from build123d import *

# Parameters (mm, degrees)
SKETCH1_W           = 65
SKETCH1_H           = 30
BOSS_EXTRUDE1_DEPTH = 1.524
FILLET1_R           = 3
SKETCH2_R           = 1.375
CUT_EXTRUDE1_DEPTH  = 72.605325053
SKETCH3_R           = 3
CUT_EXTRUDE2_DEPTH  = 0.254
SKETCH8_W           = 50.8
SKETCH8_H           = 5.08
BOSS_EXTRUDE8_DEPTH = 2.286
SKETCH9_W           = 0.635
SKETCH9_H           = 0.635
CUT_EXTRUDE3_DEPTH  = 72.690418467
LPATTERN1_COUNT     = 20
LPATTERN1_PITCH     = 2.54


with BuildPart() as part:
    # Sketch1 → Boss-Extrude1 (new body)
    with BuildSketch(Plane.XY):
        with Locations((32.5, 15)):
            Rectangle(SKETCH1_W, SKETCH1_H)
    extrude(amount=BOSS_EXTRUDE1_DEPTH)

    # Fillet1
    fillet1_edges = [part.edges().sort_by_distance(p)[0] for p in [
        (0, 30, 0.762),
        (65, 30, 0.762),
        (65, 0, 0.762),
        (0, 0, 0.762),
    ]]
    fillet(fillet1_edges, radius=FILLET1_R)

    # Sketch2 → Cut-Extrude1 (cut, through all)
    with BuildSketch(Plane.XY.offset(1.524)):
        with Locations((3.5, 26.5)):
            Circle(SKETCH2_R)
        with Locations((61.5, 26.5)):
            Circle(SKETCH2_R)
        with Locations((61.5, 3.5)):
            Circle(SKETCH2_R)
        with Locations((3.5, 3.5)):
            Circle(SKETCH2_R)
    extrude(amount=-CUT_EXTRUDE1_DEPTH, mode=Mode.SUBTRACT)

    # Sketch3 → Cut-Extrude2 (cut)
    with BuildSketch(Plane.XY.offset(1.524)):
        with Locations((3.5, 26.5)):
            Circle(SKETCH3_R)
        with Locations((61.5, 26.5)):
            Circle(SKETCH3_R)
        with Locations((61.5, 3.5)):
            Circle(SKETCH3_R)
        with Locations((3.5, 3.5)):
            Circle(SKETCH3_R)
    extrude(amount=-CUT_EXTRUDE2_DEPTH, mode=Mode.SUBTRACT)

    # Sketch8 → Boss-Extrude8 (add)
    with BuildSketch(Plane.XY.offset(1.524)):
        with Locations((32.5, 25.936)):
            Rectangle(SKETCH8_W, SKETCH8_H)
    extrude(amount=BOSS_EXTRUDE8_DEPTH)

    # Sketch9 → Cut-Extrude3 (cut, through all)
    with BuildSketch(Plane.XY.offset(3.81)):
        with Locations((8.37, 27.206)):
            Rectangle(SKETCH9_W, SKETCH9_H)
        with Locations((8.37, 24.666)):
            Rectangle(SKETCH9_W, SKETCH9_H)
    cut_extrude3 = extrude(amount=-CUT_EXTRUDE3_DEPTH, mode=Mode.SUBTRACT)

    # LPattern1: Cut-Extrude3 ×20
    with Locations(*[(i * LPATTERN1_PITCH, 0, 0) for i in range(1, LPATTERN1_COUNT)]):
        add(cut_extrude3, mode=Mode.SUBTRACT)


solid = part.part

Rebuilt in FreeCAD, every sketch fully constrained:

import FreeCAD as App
import Part
import Sketcher

V = App.Vector
Q = App.Units.Quantity


def edges_at(feature, points):
    """Names of the edges that pass closest to the given points."""
    edges = feature.Shape.Edges
    near = lambda p: min(range(len(edges)), key=lambda i: edges[i].distToShape(Part.Vertex(*p))[0])
    return sorted({f"Edge{near(p) + 1}" for p in points})


def add_polygon(sketch, points):
    """Adds a closed chain of lines whose ends are joined by coincident constraints."""
    first, n = sketch.GeometryCount, len(points)
    for a, b in zip(points, points[1:] + points[:1]):
        sketch.addGeometry(Part.LineSegment(App.Vector(*a, 0), App.Vector(*b, 0)), False)
    for i in range(n):
        sketch.addConstraint(Sketcher.Constraint("Coincident", first + i, 2, first + (i + 1) % n, 1))

doc = App.newDocument("Part")
params = doc.addObject("Spreadsheet::Sheet", "Params")
for row, (alias, value) in enumerate([
    ("pad1_length", "0.06 in"),
    ("fillet_radius", "3 mm"),
    ("pocket2_length", "0.01 in"),
    ("sketch4_width", "2 in"),
    ("sketch4_height", "0.2 in"),
    ("pad2_length", "0.09 in"),
    ("sketch5_width", "0.025 in"),
    ("linearpattern_pitch", "0.1 in"),
], start=1):
    params.set(f"A{row}", alias)
    params.set(f"B{row}", "=" + value)
    params.setAlias(f"B{row}", alias)

body = doc.addObject("PartDesign::Body", "Body")

sketch1 = body.newObject("Sketcher::SketchObject", "Sketch")
sketch1.AttachmentSupport = (doc.getObject("XY_Plane"), [""])
sketch1.MapMode = "FlatFace"
add_polygon(sketch1, [(0, 30), (0, 0), (65, 0), (65, 30)])
sketch1.addConstraint([
    Sketcher.Constraint("Vertical", 0),
    Sketcher.Constraint("Horizontal", 1),
    Sketcher.Constraint("Vertical", 2),
    Sketcher.Constraint("Horizontal", 3),
    Sketcher.Constraint("Coincident", 0, 2, -1, 1),
    Sketcher.Constraint("DistanceX", 1, 1, 1, 2, 65.0),
    Sketcher.Constraint("DistanceY", 0, 2, 0, 1, 30.0),
])
pad1 = body.newObject("PartDesign::Pad", "Pad")
pad1.Profile = sketch1
pad1.setExpression("Length", "Params.pad1_length")
doc.recompute()

fillet = body.newObject("PartDesign::Fillet", "Fillet")
fillet.Base = (pad1, edges_at(pad1, [
    (0, 30, 0.762),
    (65, 30, 0.762),
    (65, 0, 0.762),
    (0, 0, 0.762),
]))
fillet.setExpression("Radius", "Params.fillet_radius")

sketch2 = body.newObject("Sketcher::SketchObject", "Sketch001")
sketch2.AttachmentSupport = (doc.getObject("XY_Plane"), [""])
sketch2.MapMode = "FlatFace"
sketch2.AttachmentOffset = App.Placement(V(0, 0, 0.06 * 25.4), App.Rotation())
sketch2.addGeometry([
    Part.Circle(V(3.5, 26.5, 0), V(0, 0, 1), 1.4),
    Part.Circle(V(61.5, 26.5, 0), V(0, 0, 1), 1.4),
    Part.Circle(V(61.5, 3.5, 0), V(0, 0, 1), 1.4),
    Part.Circle(V(3.5, 3.5, 0), V(0, 0, 1), 1.4),
], False)
sketch2.addConstraint([
    Sketcher.Constraint("Equal", 0, 1),
    Sketcher.Constraint("Equal", 1, 2),
    Sketcher.Constraint("Equal", 2, 3),
    Sketcher.Constraint("Horizontal", 0, 3, 1, 3),
    Sketcher.Constraint("Horizontal", 2, 3, 3, 3),
    Sketcher.Constraint("Vertical", 1, 3, 2, 3),
    Sketcher.Constraint("Vertical", 0, 3, 3, 3),
    Sketcher.Constraint("Diameter", 0, 2.75),
    Sketcher.Constraint("DistanceX", -1, 1, 0, 3, 3.5),
    Sketcher.Constraint("DistanceY", -1, 1, 0, 3, 26.5),
    Sketcher.Constraint("DistanceX", -1, 1, 1, 3, 61.5),
    Sketcher.Constraint("DistanceY", -1, 1, 2, 3, 3.5),
])
pocket1 = body.newObject("PartDesign::Pocket", "Pocket")
pocket1.Profile = sketch2
pocket1.Type = "ThroughAll"

sketch3 = body.newObject("Sketcher::SketchObject", "Sketch002")
sketch3.AttachmentSupport = (doc.getObject("XY_Plane"), [""])
sketch3.MapMode = "FlatFace"
sketch3.AttachmentOffset = App.Placement(V(0, 0, 0.06 * 25.4), App.Rotation())
sketch3.addGeometry([
    Part.Circle(V(3.5, 26.5, 0), V(0, 0, 1), 3),
    Part.Circle(V(61.5, 26.5, 0), V(0, 0, 1), 3),
    Part.Circle(V(61.5, 3.5, 0), V(0, 0, 1), 3),
    Part.Circle(V(3.5, 3.5, 0), V(0, 0, 1), 3),
], False)
sketch3.addConstraint([
    Sketcher.Constraint("Equal", 0, 1),
    Sketcher.Constraint("Equal", 1, 2),
    Sketcher.Constraint("Equal", 2, 3),
    Sketcher.Constraint("Horizontal", 0, 3, 1, 3),
    Sketcher.Constraint("Horizontal", 2, 3, 3, 3),
    Sketcher.Constraint("Vertical", 1, 3, 2, 3),
    Sketcher.Constraint("Vertical", 0, 3, 3, 3),
    Sketcher.Constraint("Diameter", 0, 6.0),
    Sketcher.Constraint("DistanceX", -1, 1, 0, 3, 3.5),
    Sketcher.Constraint("DistanceY", -1, 1, 0, 3, 26.5),
    Sketcher.Constraint("DistanceX", -1, 1, 1, 3, 61.5),
    Sketcher.Constraint("DistanceY", -1, 1, 2, 3, 3.5),
])
pocket2 = body.newObject("PartDesign::Pocket", "Pocket001")
pocket2.Profile = sketch3
pocket2.setExpression("Length", "Params.pocket2_length")

sketch4 = body.newObject("Sketcher::SketchObject", "Sketch003")
sketch4.AttachmentSupport = (doc.getObject("XY_Plane"), [""])
sketch4.MapMode = "FlatFace"
sketch4.AttachmentOffset = App.Placement(V(0, 0, 0.06 * 25.4), App.Rotation())
add_polygon(sketch4, [(7, 28), (7, 23), (58, 23), (58, 28)])
sketch4.addConstraint([
    Sketcher.Constraint("Vertical", 0),
    Sketcher.Constraint("Horizontal", 1),
    Sketcher.Constraint("Vertical", 2),
    Sketcher.Constraint("Horizontal", 3),
    Sketcher.Constraint("DistanceX", 1, 1, 1, 2, Q("2 in")),
    Sketcher.Constraint("DistanceY", 0, 2, 0, 1, Q("0.2 in")),
    Sketcher.Constraint("DistanceX", -1, 1, 0, 2, 7.1),
    Sketcher.Constraint("DistanceY", -1, 1, 0, 2, 23.396),
])
sketch4.setExpression("Constraints[8]", "Params.sketch4_width")
sketch4.setExpression("Constraints[9]", "Params.sketch4_height")
pad2 = body.newObject("PartDesign::Pad", "Pad001")
pad2.Profile = sketch4
pad2.setExpression("Length", "Params.pad2_length")

sketch5 = body.newObject("Sketcher::SketchObject", "Sketch004")
sketch5.AttachmentSupport = (doc.getObject("XY_Plane"), [""])
sketch5.MapMode = "FlatFace"
sketch5.AttachmentOffset = App.Placement(V(0, 0, 0.15 * 25.4), App.Rotation())
add_polygon(sketch5, [(8.1, 27.5), (8.1, 26.9), (8.7, 26.9), (8.7, 27.5)])
add_polygon(sketch5, [(8.1, 25), (8.1, 24.3), (8.7, 24.3), (8.7, 25)])
sketch5.addConstraint([
    Sketcher.Constraint("Vertical", 0),
    Sketcher.Constraint("Horizontal", 1),
    Sketcher.Constraint("Vertical", 2),
    Sketcher.Constraint("Horizontal", 3),
    Sketcher.Constraint("Vertical", 4),
    Sketcher.Constraint("Horizontal", 5),
    Sketcher.Constraint("Vertical", 6),
    Sketcher.Constraint("Horizontal", 7),
    Sketcher.Constraint("Vertical", 3, 2, 4, 2),
    Sketcher.Constraint("Vertical", 2, 2, 5, 2),
    Sketcher.Constraint("Equal", 7, 0),
    Sketcher.Constraint("Equal", 2, 4),
    Sketcher.Constraint("DistanceY", 4, 2, 0, 2, Q("0.1 in")),
    Sketcher.Constraint("DistanceX", 1, 1, 1, 2, Q("0.025 in")),
    Sketcher.Constraint("DistanceX", -1, 1, 0, 2, 8.0525),
    Sketcher.Constraint("DistanceY", -1, 1, 0, 2, 26.8885),
])
sketch5.setExpression("Constraints[21]", "Params.sketch5_width")
pocket3 = body.newObject("PartDesign::Pocket", "Pocket002")
pocket3.Profile = sketch5
pocket3.Type = "ThroughAll"
doc.recompute()

linearpattern = body.newObject("PartDesign::LinearPattern", "LinearPattern")
linearpattern.Originals = [pocket3]
linearpattern.Direction = (doc.getObject("X_Axis"), [""])
linearpattern.Mode = "offset"
linearpattern.setExpression("Offset", "Params.linearpattern_pitch")
linearpattern.Occurrences = 20
body.Tip = linearpattern

doc.recompute()
